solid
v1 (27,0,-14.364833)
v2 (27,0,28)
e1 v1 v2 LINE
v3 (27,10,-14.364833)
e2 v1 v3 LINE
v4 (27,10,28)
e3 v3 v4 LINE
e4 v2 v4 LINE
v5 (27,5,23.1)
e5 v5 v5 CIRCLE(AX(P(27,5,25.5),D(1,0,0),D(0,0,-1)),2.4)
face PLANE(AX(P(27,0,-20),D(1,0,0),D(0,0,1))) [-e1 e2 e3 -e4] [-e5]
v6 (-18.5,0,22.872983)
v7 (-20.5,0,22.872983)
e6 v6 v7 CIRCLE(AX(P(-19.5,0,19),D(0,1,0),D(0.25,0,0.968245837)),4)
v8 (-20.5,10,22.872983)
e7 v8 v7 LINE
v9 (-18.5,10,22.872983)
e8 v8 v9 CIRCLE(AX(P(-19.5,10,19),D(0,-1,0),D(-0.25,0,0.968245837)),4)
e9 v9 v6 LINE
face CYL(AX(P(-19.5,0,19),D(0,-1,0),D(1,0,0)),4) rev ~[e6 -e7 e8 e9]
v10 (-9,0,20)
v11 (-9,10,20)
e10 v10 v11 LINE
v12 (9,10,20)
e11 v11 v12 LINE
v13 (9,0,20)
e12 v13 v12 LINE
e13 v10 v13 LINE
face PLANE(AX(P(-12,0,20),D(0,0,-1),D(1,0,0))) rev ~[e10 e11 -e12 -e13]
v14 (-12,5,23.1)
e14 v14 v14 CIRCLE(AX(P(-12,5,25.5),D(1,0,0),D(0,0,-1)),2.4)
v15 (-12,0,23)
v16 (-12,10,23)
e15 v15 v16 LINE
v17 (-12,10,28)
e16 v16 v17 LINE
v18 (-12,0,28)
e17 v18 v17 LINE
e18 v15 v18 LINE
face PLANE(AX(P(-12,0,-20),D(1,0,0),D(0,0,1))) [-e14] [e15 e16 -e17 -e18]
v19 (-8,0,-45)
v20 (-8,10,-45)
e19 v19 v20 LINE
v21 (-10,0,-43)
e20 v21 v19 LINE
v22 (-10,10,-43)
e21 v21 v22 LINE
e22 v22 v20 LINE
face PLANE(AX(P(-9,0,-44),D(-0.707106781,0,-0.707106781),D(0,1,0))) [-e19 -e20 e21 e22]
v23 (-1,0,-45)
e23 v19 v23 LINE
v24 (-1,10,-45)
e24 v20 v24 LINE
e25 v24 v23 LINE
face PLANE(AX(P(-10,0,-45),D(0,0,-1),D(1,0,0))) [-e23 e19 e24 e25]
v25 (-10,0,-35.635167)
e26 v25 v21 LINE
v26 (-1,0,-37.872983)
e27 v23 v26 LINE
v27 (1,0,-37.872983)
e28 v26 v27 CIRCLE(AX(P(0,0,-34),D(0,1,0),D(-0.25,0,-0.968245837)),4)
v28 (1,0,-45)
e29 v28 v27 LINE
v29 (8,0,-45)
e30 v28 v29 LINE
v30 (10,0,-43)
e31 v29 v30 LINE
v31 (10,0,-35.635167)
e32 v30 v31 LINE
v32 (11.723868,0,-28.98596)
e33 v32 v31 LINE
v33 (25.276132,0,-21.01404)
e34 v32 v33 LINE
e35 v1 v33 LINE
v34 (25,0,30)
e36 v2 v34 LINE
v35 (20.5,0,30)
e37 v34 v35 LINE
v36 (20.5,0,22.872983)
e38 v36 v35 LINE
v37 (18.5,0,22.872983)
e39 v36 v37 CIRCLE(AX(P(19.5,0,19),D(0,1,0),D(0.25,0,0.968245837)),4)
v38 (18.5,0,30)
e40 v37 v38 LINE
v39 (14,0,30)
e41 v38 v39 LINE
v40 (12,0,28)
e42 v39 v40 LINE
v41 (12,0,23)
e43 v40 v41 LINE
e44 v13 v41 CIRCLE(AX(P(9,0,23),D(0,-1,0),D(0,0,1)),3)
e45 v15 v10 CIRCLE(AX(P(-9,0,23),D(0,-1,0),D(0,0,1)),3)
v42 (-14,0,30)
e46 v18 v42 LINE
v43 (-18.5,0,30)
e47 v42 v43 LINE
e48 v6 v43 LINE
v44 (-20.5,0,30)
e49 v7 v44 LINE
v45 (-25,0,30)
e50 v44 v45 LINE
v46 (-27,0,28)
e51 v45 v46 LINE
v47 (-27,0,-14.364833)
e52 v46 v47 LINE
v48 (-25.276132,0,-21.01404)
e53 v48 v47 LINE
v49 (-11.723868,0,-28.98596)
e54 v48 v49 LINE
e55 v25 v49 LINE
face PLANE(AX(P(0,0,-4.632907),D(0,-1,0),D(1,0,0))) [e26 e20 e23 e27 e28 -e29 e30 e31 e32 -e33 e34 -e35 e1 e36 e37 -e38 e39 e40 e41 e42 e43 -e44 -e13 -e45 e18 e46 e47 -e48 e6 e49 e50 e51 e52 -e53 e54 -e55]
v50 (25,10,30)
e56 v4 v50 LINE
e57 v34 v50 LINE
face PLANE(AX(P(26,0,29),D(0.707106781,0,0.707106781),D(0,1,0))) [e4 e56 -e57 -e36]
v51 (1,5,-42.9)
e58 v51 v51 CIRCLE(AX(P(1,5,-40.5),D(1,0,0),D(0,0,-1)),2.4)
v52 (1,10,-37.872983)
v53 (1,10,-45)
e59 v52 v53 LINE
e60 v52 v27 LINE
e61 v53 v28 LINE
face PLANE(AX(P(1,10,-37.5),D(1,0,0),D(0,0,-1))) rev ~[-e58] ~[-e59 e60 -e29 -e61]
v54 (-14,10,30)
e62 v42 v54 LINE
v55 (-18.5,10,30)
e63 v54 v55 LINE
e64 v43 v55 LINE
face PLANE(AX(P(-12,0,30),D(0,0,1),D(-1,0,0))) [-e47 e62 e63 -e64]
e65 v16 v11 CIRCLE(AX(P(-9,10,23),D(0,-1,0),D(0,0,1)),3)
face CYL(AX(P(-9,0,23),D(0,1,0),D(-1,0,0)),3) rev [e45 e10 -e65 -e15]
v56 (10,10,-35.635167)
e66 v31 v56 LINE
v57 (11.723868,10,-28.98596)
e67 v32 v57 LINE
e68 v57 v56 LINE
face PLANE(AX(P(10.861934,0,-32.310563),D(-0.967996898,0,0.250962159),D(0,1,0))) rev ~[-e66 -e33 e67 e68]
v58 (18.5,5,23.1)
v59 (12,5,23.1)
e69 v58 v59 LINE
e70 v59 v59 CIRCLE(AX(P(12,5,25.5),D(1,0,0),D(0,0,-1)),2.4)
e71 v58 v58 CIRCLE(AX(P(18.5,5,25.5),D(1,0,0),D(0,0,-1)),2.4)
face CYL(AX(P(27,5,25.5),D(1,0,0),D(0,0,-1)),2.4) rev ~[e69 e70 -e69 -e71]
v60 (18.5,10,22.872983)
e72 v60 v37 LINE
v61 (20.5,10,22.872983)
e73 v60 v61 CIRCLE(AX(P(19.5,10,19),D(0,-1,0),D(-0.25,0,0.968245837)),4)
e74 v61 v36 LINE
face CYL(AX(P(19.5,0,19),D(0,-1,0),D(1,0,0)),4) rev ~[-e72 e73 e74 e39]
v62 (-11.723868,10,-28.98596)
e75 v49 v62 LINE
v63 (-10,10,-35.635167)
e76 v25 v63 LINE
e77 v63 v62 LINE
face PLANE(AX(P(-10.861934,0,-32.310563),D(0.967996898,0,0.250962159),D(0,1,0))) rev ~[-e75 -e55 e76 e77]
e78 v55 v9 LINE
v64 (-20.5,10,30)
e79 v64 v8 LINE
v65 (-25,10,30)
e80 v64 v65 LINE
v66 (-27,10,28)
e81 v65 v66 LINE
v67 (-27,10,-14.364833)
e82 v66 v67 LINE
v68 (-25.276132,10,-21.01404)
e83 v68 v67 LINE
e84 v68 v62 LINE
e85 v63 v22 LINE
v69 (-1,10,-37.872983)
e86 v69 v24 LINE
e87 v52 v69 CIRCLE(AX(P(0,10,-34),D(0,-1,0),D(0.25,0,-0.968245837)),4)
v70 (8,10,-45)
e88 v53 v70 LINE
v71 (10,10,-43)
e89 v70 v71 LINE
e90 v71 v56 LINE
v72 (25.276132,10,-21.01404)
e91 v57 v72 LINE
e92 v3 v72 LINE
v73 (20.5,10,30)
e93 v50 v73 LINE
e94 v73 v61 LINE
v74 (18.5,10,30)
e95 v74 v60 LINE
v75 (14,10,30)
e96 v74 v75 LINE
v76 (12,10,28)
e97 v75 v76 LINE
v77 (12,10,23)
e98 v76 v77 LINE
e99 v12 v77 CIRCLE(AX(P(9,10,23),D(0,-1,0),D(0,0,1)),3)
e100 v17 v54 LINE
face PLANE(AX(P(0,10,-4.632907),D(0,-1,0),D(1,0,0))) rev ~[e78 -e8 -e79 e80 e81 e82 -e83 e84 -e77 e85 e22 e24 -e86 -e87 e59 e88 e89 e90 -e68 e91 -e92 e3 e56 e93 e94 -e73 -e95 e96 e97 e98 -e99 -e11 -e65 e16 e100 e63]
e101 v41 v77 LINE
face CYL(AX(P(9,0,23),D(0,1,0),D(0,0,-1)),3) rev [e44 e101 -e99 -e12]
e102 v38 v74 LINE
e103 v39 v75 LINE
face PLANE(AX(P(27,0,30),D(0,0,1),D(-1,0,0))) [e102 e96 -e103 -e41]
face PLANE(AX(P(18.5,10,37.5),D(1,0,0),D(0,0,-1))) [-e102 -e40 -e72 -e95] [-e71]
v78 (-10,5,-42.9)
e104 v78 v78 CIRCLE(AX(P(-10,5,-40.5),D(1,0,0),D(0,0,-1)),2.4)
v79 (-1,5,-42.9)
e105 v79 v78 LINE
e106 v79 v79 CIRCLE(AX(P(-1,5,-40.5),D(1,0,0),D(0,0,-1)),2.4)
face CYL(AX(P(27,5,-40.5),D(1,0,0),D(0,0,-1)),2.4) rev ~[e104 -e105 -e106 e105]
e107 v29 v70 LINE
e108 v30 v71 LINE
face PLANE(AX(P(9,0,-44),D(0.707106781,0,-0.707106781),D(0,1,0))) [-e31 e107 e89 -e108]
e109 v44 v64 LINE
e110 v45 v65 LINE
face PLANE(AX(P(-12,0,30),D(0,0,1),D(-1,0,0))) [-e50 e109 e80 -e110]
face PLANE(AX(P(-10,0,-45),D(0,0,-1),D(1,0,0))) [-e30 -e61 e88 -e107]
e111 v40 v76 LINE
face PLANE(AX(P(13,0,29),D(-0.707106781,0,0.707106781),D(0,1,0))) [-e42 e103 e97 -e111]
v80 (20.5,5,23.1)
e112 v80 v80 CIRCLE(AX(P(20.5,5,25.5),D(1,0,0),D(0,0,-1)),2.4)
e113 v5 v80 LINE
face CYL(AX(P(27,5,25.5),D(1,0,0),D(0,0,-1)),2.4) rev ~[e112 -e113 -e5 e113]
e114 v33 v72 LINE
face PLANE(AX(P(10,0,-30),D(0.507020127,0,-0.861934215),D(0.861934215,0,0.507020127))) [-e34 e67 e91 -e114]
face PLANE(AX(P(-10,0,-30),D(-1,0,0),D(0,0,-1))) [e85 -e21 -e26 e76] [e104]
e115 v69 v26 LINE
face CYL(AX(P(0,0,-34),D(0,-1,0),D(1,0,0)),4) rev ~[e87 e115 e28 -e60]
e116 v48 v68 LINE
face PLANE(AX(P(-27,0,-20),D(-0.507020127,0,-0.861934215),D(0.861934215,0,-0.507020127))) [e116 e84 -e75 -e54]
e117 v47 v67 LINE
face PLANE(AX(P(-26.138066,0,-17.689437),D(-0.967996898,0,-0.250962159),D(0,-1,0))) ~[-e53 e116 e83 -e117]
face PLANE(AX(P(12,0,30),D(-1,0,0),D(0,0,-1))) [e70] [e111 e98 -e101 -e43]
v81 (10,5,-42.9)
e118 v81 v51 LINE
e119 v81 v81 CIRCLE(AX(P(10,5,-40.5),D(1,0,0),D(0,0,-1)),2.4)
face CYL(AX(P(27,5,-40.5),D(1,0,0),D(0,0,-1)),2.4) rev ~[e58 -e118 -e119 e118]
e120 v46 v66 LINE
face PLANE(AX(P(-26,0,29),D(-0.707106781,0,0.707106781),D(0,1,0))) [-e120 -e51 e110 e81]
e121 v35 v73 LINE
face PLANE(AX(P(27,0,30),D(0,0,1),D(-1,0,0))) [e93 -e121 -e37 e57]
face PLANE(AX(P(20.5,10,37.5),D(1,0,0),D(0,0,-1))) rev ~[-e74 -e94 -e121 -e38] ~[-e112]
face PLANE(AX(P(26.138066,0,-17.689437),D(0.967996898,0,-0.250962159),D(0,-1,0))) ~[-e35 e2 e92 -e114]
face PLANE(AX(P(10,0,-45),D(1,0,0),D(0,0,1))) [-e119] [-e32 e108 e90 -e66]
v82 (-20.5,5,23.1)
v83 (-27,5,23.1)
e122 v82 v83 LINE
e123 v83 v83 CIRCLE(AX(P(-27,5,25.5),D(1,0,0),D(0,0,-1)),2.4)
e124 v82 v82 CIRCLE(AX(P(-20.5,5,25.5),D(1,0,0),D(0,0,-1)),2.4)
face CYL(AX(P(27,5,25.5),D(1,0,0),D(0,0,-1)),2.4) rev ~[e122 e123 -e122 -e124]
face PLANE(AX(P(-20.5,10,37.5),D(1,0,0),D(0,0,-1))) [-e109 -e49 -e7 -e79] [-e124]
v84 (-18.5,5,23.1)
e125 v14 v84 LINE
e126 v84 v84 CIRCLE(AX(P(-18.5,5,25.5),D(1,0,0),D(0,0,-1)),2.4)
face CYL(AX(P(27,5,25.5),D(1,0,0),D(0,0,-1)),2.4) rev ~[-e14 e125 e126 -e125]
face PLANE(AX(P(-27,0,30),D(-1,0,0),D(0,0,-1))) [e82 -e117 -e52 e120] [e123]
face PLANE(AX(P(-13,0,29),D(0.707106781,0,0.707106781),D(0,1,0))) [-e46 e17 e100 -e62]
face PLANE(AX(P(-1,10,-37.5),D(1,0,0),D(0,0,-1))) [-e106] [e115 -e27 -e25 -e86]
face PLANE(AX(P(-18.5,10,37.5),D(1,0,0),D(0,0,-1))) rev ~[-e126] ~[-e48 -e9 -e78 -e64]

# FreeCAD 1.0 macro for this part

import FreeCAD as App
import Part
import Sketcher
from FreeCAD import Vector
Q = App.Units.Quantity


def edges_at(feature, points):
    """Names of the edges that pass closest to the given points."""
    edges = feature.Shape.Edges
    near = lambda p: min(range(len(edges)), key=lambda i: edges[i].distToShape(Part.Vertex(*p))[0])
    return sorted({f"Edge{near(p) + 1}" for p in points})


def add_polygon(sketch, points):
    """Adds a closed chain of lines whose ends are joined by coincident constraints."""
    first, n = sketch.GeometryCount, len(points)
    for a, b in zip(points, points[1:] + points[:1]):
        sketch.addGeometry(Part.LineSegment(App.Vector(*a, 0), App.Vector(*b, 0)), False)
    for i in range(n):
        sketch.addConstraint(Sketcher.Constraint("Coincident", first + i, 2, first + (i + 1) % n, 1))

doc = App.newDocument("Part")
body = doc.addObject("PartDesign::Body", "Body")

sketch1 = doc.addObject("Sketcher::SketchObject", "Sketch")
body.addObject(sketch1)
sketch1.AttachmentSupport = (doc.XZ_Plane, [""])
sketch1.MapMode = "FlatFace"
add_polygon(sketch1, [(-12, -20), (-12, 20), (12, 20), (12, -20)])
sketch1.addConstraint(Sketcher.Constraint("Vertical", 0))
sketch1.addConstraint(Sketcher.Constraint("Horizontal", 1))
sketch1.addConstraint(Sketcher.Constraint("Vertical", 2))
sketch1.addConstraint(Sketcher.Constraint("Horizontal", 3))
sketch1.addConstraint(Sketcher.Constraint("Symmetric", 0, 2, 2, 2, -1, 1))
sketch1.addConstraint(Sketcher.Constraint("DistanceX", 1, 1, 1, 2, Q("24 mm")))
sketch1.addConstraint(Sketcher.Constraint("DistanceY", 0, 1, 0, 2, Q("40 mm")))
pad1 = doc.addObject("PartDesign::Pad", "Pad")
body.addObject(pad1)
pad1.Profile = sketch1
pad1.Length = 10
pad1.Reversed = True

sketch2 = doc.addObject("Sketcher::SketchObject", "Sketch001")
body.addObject(sketch2)
sketch2.AttachmentSupport = (doc.XZ_Plane, [""])
sketch2.MapMode = "FlatFace"
add_polygon(sketch2, [(-12, -20), (-12, 30), (-27, 30), (-27, -20), (-10, -30), (-10, -45), (10, -45), (10, -30), (27, -20), (27, 30), (12, 30), (12, -20)])
sketch2.addGeometry(Part.Circle(Vector(0, -34, 0), Vector(0, 0, 1), 4), False)
sketch2.addGeometry(Part.Circle(Vector(-19.5, 19, 0), Vector(0, 0, 1), 4), False)
sketch2.addGeometry(Part.Circle(Vector(19.5, 19, 0), Vector(0, 0, 1), 4), False)
sketch2.addConstraint(Sketcher.Constraint("Vertical", 0))
sketch2.addConstraint(Sketcher.Constraint("Horizontal", 1))
sketch2.addConstraint(Sketcher.Constraint("Vertical", 2))
sketch2.addConstraint(Sketcher.Constraint("Vertical", 4))
sketch2.addConstraint(Sketcher.Constraint("Horizontal", 5))
sketch2.addConstraint(Sketcher.Constraint("Vertical", 6))
sketch2.addConstraint(Sketcher.Constraint("Vertical", 8))
sketch2.addConstraint(Sketcher.Constraint("Horizontal", 9))
sketch2.addConstraint(Sketcher.Constraint("Vertical", 10))
sketch2.addConstraint(Sketcher.Constraint("Horizontal", 11))
sketch2.addConstraint(Sketcher.Constraint("Equal", 12, 13))
sketch2.addConstraint(Sketcher.Constraint("Equal", 13, 14))
sketch2.addConstraint(Sketcher.Constraint("Symmetric", 13, 3, 14, 3, -2))
sketch2.addConstraint(Sketcher.Constraint("Symmetric", 3, 2, 6, 2, -2))
sketch2.addConstraint(Sketcher.Constraint("Symmetric", 2, 2, 7, 2, -2))
sketch2.addConstraint(Sketcher.Constraint("Symmetric", 0, 2, 9, 2, -2))
sketch2.addConstraint(Sketcher.Constraint("PointOnObject", 12, 3, -2))
sketch2.addConstraint(Sketcher.Constraint("Horizontal", 7, 2, 10, 2))
sketch2.addConstraint(Sketcher.Constraint("Equal", 9, 4))
sketch2.addConstraint(Sketcher.Constraint("Diameter", 12, Q("8 mm")))
sketch2.addConstraint(Sketcher.Constraint("DistanceX", 1, 2, 1, 1, Q("15 mm")))
sketch2.addConstraint(Sketcher.Constraint("DistanceX", 5, 1, 5, 2, Q("20 mm")))
sketch2.addConstraint(Sketcher.Constraint("DistanceX", 11, 2, 11, 1, Q("24 mm")))
sketch2.addConstraint(Sketcher.Constraint("DistanceY", 0, 1, 0, 2, Q("50 mm")))
sketch2.addConstraint(Sketcher.Constraint("DistanceY", 12, 3, -1, 1, Q("34 mm")))
sketch2.addConstraint(Sketcher.Constraint("DistanceY", -1, 1, 13, 3, Q("19 mm")))
sketch2.addConstraint(Sketcher.Constraint("DistanceY", -1, 1, 0, 2, Q("30 mm")))
sketch2.addConstraint(Sketcher.Constraint("DistanceY", 3, 2, -1, 1, Q("30 mm")))
sketch2.addConstraint(Sketcher.Constraint("DistanceX", 13, 3, 14, 3, Q("39 mm")))
pad2 = doc.addObject("PartDesign::Pad", "Pad001")
body.addObject(pad2)
pad2.Profile = sketch2
pad2.Length = 10
pad2.Reversed = True

sketch3 = doc.addObject("Sketcher::SketchObject", "Sketch002")
body.addObject(sketch3)
sketch3.AttachmentSupport = (doc.XZ_Plane, [""])
sketch3.MapMode = "FlatFace"
sketch3.AttachmentOffset = App.Placement(Vector(0, 0, -10), App.Rotation())
add_polygon(sketch3, [(18.5, 22.5), (18.5, 37.5), (20.5, 37.5), (20.5, 22.5)])
add_polygon(sketch3, [(-20.5, 22.5), (-20.5, 37.5), (-18.5, 37.5), (-18.5, 22.5)])
add_polygon(sketch3, [(-1, -52.5), (-1, -37.5), (1, -37.5), (1, -52.5)])
sketch3.addConstraint(Sketcher.Constraint("Vertical", 0))
sketch3.addConstraint(Sketcher.Constraint("Horizontal", 1))
sketch3.addConstraint(Sketcher.Constraint("Vertical", 2))
sketch3.addConstraint(Sketcher.Constraint("Horizontal", 3))
sketch3.addConstraint(Sketcher.Constraint("Vertical", 4))
sketch3.addConstraint(Sketcher.Constraint("Horizontal", 5))
sketch3.addConstraint(Sketcher.Constraint("Vertical", 6))
sketch3.addConstraint(Sketcher.Constraint("Horizontal", 7))
sketch3.addConstraint(Sketcher.Constraint("Vertical", 8))
sketch3.addConstraint(Sketcher.Constraint("Horizontal", 9))
sketch3.addConstraint(Sketcher.Constraint("Vertical", 10))
sketch3.addConstraint(Sketcher.Constraint("Horizontal", 11))
sketch3.addConstraint(Sketcher.Constraint("Symmetric", 1, 2, 4, 2, -2))
sketch3.addConstraint(Sketcher.Constraint("Symmetric", 3, 2, 6, 2, -2))
sketch3.addConstraint(Sketcher.Constraint("Equal", 7, 9))
sketch3.addConstraint(Sketcher.Constraint("Equal", 6, 8))
sketch3.addConstraint(Sketcher.Constraint("DistanceX", 1, 1, 1, 2, Q("2 mm")))
sketch3.addConstraint(Sketcher.Constraint("DistanceY", 0, 1, 0, 2, Q("15 mm")))
sketch3.addConstraint(Sketcher.Constraint("DistanceX", 8, 2, -1, 1, Q("1 mm")))
sketch3.addConstraint(Sketcher.Constraint("DistanceX", 4, 2, 0, 2, Q("39 mm")))
sketch3.addConstraint(Sketcher.Constraint("DistanceY", 8, 2, 6, 2, Q("60 mm")))
sketch3.addConstraint(Sketcher.Constraint("DistanceY", -1, 1, 0, 2, Q("37.5 mm")))
pocket1 = doc.addObject("PartDesign::Pocket", "Pocket")
body.addObject(pocket1)
pocket1.Profile = sketch3
pocket1.Length = 20
pocket1.Reversed = True

sketch4 = doc.addObject("Sketcher::SketchObject", "Sketch003")
body.addObject(sketch4)
sketch4.AttachmentSupport = (doc.YZ_Plane, [""])
sketch4.MapMode = "FlatFace"
sketch4.AttachmentOffset = App.Placement(Vector(0, 0, 27), App.Rotation())
sketch4.addGeometry(Part.Circle(Vector(5, 25.5, 0), Vector(0, 0, 1), 2.4), False)
sketch4.addGeometry(Part.Circle(Vector(5, -40.5, 0), Vector(0, 0, 1), 2.4), False)
sketch4.addConstraint(Sketcher.Constraint("Equal", 0, 1))
sketch4.addConstraint(Sketcher.Constraint("Vertical", 0, 3, 1, 3))
sketch4.addConstraint(Sketcher.Constraint("Diameter", 0, Q("4.8 mm")))
sketch4.addConstraint(Sketcher.Constraint("DistanceX", -1, 1, 0, 3, Q("5 mm")))
sketch4.addConstraint(Sketcher.Constraint("DistanceY", 1, 3, 0, 3, Q("66 mm")))
sketch4.addConstraint(Sketcher.Constraint("DistanceY", -1, 1, 0, 3, Q("25.5 mm")))
pocket2 = doc.addObject("PartDesign::Pocket", "Pocket001")
body.addObject(pocket2)
pocket2.Profile = sketch4
pocket2.Length = 56
doc.recompute()

chamfer = doc.addObject("PartDesign::Chamfer", "Chamfer")
body.addObject(chamfer)
chamfer.Base = (pocket2, edges_at(pocket2, [
    (-12, 5, 30),
    (12, 5, 30),
    (27, 5, 30),
    (10, 5, -45),
    (-10, 5, -45),
    (-27, 5, 30),
]))
chamfer.Size = 2
doc.recompute()

chamfer2 = doc.addObject("PartDesign::Chamfer", "Chamfer001")
body.addObject(chamfer2)
chamfer2.Base = (chamfer, edges_at(chamfer, [(27, 5, -20)]))
chamfer2.ChamferType = "Two distances"
chamfer2.Size = 5.635167
chamfer2.Size2 = 2
doc.recompute()

chamfer3 = doc.addObject("PartDesign::Chamfer", "Chamfer002")
body.addObject(chamfer3)
chamfer3.Base = (chamfer2, edges_at(chamfer2, [(10, 5, -30)]))
chamfer3.ChamferType = "Two distances"
chamfer3.Size = 2
chamfer3.Size2 = 5.635167
doc.recompute()

chamfer4 = doc.addObject("PartDesign::Chamfer", "Chamfer003")
body.addObject(chamfer4)
chamfer4.Base = (chamfer3, edges_at(chamfer3, [(-10, 5, -30)]))
chamfer4.ChamferType = "Two distances"
chamfer4.Size = 5.635167
chamfer4.Size2 = 2
doc.recompute()

chamfer5 = doc.addObject("PartDesign::Chamfer", "Chamfer004")
body.addObject(chamfer5)
chamfer5.Base = (chamfer4, edges_at(chamfer4, [(-27, 5, -20)]))
chamfer5.ChamferType = "Two distances"
chamfer5.Size = 2
chamfer5.Size2 = 5.635167
doc.recompute()

fillet = doc.addObject("PartDesign::Fillet", "Fillet")
body.addObject(fillet)
fillet.Base = (chamfer5, edges_at(chamfer5, [(12, 5, 20), (-12, 5, 20)]))
fillet.Radius = 3

doc.recompute()
